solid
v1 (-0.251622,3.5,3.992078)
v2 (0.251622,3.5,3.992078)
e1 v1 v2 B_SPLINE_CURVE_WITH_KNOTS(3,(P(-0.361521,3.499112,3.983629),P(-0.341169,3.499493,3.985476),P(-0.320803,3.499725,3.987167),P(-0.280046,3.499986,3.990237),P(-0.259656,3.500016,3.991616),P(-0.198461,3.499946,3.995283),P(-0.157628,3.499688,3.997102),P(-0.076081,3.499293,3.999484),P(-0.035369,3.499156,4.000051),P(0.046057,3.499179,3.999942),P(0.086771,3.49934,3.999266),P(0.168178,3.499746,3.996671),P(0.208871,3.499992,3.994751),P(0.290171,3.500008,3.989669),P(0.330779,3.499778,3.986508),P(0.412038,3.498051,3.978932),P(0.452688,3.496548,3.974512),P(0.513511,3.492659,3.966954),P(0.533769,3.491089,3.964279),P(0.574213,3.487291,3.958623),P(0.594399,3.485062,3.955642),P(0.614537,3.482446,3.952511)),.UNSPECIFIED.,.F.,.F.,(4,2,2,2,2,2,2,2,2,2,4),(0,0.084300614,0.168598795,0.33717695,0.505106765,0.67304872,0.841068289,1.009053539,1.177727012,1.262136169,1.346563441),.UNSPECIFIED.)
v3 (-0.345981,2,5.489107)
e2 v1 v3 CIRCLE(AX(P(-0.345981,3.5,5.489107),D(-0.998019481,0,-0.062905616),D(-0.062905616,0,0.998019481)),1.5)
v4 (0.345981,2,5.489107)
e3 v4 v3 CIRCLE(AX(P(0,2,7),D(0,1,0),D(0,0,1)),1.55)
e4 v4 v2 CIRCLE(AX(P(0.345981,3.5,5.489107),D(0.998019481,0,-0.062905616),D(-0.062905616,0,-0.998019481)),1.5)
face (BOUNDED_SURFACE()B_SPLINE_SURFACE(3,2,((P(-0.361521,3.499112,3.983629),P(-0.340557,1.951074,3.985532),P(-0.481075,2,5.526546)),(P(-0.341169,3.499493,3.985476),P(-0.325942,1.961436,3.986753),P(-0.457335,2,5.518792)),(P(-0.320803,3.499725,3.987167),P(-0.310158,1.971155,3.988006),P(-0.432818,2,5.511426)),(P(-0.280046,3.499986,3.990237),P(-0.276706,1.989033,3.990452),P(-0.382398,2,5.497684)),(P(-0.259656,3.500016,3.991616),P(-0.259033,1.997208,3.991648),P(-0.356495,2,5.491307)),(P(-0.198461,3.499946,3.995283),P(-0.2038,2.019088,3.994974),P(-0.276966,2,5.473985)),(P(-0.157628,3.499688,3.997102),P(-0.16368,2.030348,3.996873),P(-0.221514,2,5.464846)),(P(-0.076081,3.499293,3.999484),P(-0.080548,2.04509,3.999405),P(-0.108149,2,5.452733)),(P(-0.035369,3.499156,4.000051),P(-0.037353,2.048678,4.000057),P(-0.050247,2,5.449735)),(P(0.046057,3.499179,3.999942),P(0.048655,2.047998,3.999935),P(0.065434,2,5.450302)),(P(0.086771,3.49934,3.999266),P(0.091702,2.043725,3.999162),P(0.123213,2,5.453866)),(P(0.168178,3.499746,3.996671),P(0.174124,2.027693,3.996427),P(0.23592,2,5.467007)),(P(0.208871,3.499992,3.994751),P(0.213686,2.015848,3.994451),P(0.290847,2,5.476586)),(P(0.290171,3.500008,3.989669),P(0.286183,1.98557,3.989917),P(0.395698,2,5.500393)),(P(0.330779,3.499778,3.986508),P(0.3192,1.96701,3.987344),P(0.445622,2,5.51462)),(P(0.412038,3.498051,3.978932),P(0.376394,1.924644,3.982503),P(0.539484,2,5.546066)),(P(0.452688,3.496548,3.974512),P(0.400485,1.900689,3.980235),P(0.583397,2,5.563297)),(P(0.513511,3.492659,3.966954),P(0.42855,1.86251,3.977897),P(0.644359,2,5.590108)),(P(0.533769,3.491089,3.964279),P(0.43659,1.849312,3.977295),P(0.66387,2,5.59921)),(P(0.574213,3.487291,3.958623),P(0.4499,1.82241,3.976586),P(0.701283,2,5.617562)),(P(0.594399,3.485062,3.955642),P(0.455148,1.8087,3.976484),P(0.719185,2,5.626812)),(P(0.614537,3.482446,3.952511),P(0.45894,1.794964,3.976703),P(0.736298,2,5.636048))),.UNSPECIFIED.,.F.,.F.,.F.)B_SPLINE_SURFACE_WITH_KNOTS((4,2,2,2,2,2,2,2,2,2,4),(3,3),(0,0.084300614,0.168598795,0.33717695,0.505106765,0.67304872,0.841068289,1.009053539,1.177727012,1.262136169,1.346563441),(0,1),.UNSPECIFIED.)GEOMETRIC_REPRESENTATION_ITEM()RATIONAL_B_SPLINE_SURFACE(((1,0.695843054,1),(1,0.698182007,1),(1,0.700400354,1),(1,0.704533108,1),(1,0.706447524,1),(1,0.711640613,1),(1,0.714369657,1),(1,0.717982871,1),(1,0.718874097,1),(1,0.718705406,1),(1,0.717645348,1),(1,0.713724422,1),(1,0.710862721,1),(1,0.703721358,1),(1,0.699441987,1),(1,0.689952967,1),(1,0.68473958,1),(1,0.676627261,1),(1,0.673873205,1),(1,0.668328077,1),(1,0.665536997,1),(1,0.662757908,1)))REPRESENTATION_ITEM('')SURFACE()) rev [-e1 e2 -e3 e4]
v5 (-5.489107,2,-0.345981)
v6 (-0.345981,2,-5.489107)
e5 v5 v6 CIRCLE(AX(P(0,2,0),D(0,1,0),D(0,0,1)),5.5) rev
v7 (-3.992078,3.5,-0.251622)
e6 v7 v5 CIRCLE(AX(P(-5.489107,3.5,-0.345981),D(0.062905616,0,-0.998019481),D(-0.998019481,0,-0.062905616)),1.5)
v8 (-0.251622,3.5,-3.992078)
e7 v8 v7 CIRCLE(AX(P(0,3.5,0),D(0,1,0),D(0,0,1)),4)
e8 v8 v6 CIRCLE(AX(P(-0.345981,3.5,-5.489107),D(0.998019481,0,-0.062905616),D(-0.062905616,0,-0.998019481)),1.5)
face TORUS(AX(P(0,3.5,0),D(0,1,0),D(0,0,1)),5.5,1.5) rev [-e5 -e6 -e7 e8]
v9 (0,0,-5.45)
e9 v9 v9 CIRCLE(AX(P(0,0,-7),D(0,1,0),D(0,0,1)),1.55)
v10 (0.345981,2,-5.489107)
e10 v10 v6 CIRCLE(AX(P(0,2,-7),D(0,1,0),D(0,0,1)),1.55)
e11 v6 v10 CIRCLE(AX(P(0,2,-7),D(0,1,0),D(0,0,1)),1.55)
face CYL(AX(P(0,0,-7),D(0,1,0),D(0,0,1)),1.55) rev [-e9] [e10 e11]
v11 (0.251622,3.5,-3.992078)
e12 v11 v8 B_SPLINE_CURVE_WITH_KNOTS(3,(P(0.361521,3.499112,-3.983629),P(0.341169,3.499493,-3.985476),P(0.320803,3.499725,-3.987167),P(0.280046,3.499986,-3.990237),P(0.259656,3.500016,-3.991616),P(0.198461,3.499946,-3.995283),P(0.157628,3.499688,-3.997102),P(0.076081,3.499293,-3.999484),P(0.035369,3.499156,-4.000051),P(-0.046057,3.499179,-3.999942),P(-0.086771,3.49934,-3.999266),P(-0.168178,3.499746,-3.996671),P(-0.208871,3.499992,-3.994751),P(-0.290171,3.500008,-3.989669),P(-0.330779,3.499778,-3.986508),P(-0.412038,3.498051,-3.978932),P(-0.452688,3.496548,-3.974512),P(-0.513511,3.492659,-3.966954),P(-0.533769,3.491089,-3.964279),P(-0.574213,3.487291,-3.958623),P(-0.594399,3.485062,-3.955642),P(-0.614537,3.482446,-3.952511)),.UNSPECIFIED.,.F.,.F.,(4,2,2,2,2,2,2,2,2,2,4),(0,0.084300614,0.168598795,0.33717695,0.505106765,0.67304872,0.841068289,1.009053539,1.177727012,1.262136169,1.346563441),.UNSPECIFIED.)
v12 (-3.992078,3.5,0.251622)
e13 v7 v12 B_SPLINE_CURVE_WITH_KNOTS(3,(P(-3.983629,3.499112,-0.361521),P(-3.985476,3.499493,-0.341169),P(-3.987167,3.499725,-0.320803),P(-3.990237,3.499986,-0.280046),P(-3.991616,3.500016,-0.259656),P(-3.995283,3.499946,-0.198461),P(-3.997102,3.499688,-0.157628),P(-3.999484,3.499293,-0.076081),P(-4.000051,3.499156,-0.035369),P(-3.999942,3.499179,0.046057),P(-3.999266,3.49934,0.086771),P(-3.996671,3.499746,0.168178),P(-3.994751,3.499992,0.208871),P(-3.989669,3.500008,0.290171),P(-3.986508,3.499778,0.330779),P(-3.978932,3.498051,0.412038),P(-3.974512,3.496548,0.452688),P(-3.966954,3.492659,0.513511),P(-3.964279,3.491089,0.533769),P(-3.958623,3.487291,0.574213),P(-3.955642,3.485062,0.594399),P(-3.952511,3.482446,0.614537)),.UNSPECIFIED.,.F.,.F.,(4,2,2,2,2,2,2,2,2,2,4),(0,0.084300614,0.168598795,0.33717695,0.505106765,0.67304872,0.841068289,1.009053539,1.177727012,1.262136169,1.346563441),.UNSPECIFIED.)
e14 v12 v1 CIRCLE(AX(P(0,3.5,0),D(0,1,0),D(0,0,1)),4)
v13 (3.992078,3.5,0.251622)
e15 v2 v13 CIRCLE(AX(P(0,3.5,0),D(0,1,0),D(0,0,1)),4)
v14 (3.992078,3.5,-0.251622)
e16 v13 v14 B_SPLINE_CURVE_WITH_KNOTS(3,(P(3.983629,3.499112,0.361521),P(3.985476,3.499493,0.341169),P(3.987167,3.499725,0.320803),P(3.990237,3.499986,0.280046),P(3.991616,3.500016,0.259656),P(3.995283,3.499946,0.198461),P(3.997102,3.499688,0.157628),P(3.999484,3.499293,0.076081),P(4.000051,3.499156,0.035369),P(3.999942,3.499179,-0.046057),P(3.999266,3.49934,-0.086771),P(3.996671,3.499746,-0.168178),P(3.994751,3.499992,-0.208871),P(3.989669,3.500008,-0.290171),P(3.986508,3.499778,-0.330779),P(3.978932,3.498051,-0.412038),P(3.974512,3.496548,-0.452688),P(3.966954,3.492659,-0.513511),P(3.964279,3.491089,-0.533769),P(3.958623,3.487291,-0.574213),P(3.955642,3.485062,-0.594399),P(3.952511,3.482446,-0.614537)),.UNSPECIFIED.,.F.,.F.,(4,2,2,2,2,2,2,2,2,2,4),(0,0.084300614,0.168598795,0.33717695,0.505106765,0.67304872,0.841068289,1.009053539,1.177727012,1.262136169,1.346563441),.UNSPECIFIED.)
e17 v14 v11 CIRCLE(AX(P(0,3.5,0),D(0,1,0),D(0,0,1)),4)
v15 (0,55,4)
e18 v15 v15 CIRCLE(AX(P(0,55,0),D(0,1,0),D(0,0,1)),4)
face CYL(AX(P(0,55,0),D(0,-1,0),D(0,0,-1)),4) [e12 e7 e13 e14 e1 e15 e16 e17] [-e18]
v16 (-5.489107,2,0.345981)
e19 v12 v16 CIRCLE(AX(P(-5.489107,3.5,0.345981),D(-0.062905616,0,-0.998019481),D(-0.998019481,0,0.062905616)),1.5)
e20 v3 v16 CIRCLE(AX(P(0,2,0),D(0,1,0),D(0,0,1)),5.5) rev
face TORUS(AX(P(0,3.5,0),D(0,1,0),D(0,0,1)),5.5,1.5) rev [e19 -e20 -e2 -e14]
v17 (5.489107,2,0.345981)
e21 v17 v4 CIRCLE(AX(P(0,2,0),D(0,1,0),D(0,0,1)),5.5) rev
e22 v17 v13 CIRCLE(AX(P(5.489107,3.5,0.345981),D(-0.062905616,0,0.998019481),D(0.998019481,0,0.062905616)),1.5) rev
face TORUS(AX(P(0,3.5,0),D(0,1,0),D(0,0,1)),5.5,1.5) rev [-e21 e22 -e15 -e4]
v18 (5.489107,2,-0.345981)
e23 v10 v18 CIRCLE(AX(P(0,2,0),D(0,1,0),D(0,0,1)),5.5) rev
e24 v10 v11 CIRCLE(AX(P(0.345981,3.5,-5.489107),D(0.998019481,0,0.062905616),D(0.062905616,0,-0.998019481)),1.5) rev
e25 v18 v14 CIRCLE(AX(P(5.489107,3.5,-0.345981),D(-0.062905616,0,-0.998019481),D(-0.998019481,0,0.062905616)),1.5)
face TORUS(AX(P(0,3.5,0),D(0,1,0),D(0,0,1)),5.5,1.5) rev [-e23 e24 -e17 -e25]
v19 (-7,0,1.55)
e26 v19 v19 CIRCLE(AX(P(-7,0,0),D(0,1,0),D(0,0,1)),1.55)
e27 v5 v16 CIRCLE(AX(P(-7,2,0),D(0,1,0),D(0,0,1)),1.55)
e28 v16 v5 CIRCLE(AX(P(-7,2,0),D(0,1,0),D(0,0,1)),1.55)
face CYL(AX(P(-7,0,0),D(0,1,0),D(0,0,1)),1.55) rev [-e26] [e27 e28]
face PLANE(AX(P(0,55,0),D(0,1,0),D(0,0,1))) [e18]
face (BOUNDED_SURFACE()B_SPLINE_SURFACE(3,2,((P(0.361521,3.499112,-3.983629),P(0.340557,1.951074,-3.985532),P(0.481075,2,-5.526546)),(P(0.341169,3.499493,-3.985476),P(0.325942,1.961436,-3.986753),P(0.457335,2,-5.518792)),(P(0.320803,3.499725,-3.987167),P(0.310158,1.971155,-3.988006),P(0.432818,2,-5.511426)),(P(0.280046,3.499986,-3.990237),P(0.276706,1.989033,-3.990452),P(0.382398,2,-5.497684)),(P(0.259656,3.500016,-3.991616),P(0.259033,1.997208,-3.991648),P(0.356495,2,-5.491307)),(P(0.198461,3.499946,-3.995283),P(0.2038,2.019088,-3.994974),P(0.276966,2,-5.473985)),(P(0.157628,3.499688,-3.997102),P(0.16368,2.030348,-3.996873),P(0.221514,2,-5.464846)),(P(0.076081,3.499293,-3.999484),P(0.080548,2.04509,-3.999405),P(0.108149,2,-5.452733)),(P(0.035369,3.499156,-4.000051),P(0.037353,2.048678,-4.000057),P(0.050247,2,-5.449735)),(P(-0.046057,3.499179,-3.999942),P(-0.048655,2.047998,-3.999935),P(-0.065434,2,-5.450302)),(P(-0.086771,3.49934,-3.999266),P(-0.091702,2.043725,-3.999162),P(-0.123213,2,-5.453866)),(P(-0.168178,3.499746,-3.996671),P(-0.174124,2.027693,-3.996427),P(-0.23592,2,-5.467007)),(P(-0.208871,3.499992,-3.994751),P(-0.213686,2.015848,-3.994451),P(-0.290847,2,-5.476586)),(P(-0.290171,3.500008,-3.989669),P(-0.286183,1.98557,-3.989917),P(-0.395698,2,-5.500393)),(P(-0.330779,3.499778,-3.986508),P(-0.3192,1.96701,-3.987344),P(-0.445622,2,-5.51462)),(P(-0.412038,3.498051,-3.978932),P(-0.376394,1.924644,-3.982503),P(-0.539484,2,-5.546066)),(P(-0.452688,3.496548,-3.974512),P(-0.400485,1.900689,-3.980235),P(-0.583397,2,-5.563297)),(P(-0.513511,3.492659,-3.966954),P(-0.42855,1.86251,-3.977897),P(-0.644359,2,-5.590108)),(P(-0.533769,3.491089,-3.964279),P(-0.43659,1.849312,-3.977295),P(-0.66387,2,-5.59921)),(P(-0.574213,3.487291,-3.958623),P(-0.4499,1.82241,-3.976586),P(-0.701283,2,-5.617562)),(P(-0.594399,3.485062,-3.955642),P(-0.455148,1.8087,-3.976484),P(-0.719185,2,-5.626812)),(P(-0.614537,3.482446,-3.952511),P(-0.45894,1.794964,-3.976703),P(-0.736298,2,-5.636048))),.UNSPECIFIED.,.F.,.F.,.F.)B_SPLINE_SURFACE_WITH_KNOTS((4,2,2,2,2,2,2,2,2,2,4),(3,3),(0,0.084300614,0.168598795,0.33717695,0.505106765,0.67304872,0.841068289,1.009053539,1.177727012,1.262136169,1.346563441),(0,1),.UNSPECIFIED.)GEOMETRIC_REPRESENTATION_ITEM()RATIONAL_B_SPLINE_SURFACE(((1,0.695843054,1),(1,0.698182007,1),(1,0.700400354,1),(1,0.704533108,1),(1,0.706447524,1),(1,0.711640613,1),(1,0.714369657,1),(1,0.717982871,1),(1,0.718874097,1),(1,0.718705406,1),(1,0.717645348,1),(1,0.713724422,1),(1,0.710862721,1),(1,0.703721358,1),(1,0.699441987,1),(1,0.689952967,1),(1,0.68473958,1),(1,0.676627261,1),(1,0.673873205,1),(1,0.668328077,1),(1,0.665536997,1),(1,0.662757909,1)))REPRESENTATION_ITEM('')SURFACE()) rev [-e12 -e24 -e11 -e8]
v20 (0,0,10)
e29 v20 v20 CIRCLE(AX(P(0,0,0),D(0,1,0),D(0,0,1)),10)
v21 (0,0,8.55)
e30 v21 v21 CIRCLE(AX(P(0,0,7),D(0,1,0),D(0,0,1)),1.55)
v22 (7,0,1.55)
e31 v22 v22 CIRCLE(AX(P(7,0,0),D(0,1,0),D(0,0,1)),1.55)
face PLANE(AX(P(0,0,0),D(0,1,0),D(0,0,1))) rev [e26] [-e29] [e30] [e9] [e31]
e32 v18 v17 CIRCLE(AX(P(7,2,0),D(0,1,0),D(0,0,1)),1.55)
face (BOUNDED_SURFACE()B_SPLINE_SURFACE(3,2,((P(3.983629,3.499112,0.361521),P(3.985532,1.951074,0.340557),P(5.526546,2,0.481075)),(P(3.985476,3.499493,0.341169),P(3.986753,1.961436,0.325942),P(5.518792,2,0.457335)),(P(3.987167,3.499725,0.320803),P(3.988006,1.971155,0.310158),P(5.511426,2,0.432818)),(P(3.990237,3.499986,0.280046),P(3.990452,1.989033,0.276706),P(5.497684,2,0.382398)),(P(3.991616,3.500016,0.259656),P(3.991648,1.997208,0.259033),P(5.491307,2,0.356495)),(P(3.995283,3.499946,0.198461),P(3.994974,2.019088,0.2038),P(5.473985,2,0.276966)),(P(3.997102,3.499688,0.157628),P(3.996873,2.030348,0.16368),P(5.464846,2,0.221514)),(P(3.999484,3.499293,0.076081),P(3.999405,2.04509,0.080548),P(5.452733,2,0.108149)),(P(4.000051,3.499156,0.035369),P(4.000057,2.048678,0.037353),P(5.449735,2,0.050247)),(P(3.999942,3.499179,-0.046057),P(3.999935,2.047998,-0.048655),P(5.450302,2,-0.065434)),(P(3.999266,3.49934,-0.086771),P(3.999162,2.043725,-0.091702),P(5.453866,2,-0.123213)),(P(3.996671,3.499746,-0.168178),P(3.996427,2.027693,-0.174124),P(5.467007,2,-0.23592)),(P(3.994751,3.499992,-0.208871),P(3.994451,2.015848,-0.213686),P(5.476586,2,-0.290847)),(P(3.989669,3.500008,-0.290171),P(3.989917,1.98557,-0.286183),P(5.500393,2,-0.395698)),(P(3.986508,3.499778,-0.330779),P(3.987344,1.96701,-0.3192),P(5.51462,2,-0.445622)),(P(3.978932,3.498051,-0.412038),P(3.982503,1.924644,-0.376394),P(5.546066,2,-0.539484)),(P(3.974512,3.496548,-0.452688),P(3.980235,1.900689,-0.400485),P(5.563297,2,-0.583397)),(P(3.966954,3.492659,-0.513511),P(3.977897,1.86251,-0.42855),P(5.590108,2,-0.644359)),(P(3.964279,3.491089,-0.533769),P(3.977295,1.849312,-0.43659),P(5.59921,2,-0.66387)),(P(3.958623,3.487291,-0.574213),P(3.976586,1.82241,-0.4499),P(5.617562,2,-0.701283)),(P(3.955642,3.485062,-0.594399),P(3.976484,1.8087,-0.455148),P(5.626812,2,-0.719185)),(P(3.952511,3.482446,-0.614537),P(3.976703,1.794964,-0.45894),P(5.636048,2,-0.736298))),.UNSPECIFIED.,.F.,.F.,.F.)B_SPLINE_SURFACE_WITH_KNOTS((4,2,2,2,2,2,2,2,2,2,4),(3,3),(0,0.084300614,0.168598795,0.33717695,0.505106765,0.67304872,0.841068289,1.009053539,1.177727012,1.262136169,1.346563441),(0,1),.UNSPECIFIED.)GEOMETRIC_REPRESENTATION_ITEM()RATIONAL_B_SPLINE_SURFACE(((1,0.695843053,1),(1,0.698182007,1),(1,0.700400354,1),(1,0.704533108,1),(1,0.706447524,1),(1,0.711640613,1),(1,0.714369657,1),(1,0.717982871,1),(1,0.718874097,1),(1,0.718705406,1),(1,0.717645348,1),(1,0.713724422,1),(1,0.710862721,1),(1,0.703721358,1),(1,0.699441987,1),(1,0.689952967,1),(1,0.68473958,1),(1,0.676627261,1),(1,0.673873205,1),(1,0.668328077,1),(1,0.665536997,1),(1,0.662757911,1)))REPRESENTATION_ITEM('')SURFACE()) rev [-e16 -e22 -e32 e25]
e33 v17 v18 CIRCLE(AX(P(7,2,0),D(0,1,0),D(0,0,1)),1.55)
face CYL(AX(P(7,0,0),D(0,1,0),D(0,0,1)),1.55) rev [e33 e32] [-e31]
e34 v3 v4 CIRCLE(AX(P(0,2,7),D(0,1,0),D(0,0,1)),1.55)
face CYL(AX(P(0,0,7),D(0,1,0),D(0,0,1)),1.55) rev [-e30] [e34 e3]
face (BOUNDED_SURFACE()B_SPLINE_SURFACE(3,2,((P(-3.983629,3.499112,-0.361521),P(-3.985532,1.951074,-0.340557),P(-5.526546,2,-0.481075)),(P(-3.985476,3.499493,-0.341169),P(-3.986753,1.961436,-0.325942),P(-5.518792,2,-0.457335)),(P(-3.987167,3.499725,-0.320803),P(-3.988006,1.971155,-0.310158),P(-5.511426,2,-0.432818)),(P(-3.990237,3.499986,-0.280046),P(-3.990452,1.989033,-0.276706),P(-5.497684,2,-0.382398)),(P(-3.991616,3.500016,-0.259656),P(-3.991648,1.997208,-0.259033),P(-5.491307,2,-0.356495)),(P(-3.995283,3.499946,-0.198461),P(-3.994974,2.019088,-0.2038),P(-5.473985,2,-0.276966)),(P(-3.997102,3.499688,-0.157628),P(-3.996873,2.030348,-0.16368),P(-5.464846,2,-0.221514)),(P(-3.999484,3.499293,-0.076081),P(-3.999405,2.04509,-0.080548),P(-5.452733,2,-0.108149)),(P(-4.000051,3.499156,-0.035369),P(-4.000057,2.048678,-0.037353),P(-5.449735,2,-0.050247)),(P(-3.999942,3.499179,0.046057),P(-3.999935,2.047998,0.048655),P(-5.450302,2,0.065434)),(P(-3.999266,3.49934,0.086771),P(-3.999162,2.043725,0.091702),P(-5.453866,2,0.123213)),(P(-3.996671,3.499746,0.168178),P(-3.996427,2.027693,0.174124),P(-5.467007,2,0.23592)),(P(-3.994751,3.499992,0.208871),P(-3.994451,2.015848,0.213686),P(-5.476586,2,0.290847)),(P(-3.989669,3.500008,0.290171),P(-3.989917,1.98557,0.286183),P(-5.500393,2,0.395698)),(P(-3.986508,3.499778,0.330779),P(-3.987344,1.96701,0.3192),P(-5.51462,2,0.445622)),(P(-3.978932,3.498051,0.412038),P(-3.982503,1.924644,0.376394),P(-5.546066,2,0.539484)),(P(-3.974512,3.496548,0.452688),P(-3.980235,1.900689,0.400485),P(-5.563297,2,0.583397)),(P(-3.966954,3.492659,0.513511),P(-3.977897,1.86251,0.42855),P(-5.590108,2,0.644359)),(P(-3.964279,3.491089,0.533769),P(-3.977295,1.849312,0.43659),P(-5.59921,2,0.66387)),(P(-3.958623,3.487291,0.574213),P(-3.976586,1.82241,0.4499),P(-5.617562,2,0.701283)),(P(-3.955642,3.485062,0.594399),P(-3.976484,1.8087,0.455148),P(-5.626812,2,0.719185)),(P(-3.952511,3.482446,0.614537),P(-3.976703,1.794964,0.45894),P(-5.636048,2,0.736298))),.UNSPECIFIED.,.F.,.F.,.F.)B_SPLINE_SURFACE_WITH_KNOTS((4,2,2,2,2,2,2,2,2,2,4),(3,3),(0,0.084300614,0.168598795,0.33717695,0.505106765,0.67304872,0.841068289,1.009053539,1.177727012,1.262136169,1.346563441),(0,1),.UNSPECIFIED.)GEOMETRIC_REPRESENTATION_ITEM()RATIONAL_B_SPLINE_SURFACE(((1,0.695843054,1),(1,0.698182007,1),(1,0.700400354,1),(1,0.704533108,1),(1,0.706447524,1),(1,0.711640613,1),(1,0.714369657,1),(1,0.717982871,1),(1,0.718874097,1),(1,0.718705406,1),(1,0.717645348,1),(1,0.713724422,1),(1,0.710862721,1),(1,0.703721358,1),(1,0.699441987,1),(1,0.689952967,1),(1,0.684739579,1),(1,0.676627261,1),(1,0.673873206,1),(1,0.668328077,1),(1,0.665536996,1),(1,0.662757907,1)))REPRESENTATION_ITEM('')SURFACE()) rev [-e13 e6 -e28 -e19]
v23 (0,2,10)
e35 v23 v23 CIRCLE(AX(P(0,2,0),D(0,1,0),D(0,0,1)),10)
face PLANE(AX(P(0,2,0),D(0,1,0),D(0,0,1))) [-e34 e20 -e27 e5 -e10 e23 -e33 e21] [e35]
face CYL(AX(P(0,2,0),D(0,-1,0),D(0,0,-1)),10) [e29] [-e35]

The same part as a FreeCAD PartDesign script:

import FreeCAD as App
import Part
import Sketcher
from FreeCAD import Vector


def edges_at(feature, points):
    """Names of the edges that pass closest to the given points."""
    edges = feature.Shape.Edges
    near = lambda p: min(range(len(edges)), key=lambda i: edges[i].distToShape(Part.Vertex(*p))[0])
    return sorted({f"Edge{near(p) + 1}" for p in points})

doc = App.newDocument("Part")
body = doc.addObject("PartDesign::Body", "Body")

sketch1 = doc.addObject("Sketcher::SketchObject", "Sketch")
body.addObject(sketch1)
sketch1.AttachmentSupport = (doc.XZ_Plane, [""])
sketch1.MapMode = "FlatFace"
sketch1.addGeometry(Part.Circle(Vector(0, 0, 0), Vector(0, 0, 1), 10), False)
sketch1.addConstraint([
    Sketcher.Constraint("Coincident", 0, 3, -1, 1),
    Sketcher.Constraint("Diameter", 0, 20.0),
])
pad1 = doc.addObject("PartDesign::Pad", "Pad")
body.addObject(pad1)
pad1.Profile = sketch1
pad1.Length = 2
pad1.Reversed = True

sketch2 = doc.addObject("Sketcher::SketchObject", "Sketch001")
body.addObject(sketch2)
sketch2.AttachmentSupport = (doc.XZ_Plane, [""])
sketch2.MapMode = "FlatFace"
sketch2.AttachmentOffset = App.Placement(Vector(0, 0, -2), App.Rotation())
sketch2.addGeometry([
    Part.Circle(Vector(0, -7, 0), Vector(0, 0, 1), 1.55),
    Part.Circle(Vector(7, 0, 0), Vector(0, 0, 1), 1.55),
    Part.Circle(Vector(-7, 0, 0), Vector(0, 0, 1), 1.55),
    Part.Circle(Vector(0, 7, 0), Vector(0, 0, 1), 1.55),
], False)
sketch2.addConstraint([
    Sketcher.Constraint("Equal", 0, 1),
    Sketcher.Constraint("Equal", 1, 2),
    Sketcher.Constraint("Equal", 2, 3),
    Sketcher.Constraint("Symmetric", 1, 3, 2, 3, -1, 1),
    Sketcher.Constraint("Symmetric", 0, 3, 3, 3, -1, 1),
    Sketcher.Constraint("PointOnObject", 0, 3, -2),
    Sketcher.Constraint("PointOnObject", 1, 3, -1),
    Sketcher.Constraint("Diameter", 0, 3.1),
    Sketcher.Constraint("DistanceY", 0, 3, -1, 1, 7.0),
    Sketcher.Constraint("DistanceX", -1, 1, 1, 3, 7.0),
])
pocket1 = doc.addObject("PartDesign::Pocket", "Pocket")
body.addObject(pocket1)
pocket1.Profile = sketch2
pocket1.Length = 2
pocket1.Reversed = True

sketch3 = doc.addObject("Sketcher::SketchObject", "Sketch002")
body.addObject(sketch3)
sketch3.AttachmentSupport = (doc.XZ_Plane, [""])
sketch3.MapMode = "FlatFace"
sketch3.AttachmentOffset = App.Placement(Vector(0, 0, -2), App.Rotation())
sketch3.addGeometry(Part.Circle(Vector(0, 0, 0), Vector(0, 0, 1), 4), False)
sketch3.addConstraint([
    Sketcher.Constraint("Coincident", 0, 3, -1, 1),
    Sketcher.Constraint("Diameter", 0, 8.0),
])
pad2 = doc.addObject("PartDesign::Pad", "Pad001")
body.addObject(pad2)
pad2.Profile = sketch3
pad2.Length = 53
pad2.Reversed = True
doc.recompute()

fillet = doc.addObject("PartDesign::Fillet", "Fillet")
body.addObject(fillet)
fillet.Base = (pad2, edges_at(pad2, [(0, 2, -4)]))
fillet.Radius = 1.5

doc.recompute()
